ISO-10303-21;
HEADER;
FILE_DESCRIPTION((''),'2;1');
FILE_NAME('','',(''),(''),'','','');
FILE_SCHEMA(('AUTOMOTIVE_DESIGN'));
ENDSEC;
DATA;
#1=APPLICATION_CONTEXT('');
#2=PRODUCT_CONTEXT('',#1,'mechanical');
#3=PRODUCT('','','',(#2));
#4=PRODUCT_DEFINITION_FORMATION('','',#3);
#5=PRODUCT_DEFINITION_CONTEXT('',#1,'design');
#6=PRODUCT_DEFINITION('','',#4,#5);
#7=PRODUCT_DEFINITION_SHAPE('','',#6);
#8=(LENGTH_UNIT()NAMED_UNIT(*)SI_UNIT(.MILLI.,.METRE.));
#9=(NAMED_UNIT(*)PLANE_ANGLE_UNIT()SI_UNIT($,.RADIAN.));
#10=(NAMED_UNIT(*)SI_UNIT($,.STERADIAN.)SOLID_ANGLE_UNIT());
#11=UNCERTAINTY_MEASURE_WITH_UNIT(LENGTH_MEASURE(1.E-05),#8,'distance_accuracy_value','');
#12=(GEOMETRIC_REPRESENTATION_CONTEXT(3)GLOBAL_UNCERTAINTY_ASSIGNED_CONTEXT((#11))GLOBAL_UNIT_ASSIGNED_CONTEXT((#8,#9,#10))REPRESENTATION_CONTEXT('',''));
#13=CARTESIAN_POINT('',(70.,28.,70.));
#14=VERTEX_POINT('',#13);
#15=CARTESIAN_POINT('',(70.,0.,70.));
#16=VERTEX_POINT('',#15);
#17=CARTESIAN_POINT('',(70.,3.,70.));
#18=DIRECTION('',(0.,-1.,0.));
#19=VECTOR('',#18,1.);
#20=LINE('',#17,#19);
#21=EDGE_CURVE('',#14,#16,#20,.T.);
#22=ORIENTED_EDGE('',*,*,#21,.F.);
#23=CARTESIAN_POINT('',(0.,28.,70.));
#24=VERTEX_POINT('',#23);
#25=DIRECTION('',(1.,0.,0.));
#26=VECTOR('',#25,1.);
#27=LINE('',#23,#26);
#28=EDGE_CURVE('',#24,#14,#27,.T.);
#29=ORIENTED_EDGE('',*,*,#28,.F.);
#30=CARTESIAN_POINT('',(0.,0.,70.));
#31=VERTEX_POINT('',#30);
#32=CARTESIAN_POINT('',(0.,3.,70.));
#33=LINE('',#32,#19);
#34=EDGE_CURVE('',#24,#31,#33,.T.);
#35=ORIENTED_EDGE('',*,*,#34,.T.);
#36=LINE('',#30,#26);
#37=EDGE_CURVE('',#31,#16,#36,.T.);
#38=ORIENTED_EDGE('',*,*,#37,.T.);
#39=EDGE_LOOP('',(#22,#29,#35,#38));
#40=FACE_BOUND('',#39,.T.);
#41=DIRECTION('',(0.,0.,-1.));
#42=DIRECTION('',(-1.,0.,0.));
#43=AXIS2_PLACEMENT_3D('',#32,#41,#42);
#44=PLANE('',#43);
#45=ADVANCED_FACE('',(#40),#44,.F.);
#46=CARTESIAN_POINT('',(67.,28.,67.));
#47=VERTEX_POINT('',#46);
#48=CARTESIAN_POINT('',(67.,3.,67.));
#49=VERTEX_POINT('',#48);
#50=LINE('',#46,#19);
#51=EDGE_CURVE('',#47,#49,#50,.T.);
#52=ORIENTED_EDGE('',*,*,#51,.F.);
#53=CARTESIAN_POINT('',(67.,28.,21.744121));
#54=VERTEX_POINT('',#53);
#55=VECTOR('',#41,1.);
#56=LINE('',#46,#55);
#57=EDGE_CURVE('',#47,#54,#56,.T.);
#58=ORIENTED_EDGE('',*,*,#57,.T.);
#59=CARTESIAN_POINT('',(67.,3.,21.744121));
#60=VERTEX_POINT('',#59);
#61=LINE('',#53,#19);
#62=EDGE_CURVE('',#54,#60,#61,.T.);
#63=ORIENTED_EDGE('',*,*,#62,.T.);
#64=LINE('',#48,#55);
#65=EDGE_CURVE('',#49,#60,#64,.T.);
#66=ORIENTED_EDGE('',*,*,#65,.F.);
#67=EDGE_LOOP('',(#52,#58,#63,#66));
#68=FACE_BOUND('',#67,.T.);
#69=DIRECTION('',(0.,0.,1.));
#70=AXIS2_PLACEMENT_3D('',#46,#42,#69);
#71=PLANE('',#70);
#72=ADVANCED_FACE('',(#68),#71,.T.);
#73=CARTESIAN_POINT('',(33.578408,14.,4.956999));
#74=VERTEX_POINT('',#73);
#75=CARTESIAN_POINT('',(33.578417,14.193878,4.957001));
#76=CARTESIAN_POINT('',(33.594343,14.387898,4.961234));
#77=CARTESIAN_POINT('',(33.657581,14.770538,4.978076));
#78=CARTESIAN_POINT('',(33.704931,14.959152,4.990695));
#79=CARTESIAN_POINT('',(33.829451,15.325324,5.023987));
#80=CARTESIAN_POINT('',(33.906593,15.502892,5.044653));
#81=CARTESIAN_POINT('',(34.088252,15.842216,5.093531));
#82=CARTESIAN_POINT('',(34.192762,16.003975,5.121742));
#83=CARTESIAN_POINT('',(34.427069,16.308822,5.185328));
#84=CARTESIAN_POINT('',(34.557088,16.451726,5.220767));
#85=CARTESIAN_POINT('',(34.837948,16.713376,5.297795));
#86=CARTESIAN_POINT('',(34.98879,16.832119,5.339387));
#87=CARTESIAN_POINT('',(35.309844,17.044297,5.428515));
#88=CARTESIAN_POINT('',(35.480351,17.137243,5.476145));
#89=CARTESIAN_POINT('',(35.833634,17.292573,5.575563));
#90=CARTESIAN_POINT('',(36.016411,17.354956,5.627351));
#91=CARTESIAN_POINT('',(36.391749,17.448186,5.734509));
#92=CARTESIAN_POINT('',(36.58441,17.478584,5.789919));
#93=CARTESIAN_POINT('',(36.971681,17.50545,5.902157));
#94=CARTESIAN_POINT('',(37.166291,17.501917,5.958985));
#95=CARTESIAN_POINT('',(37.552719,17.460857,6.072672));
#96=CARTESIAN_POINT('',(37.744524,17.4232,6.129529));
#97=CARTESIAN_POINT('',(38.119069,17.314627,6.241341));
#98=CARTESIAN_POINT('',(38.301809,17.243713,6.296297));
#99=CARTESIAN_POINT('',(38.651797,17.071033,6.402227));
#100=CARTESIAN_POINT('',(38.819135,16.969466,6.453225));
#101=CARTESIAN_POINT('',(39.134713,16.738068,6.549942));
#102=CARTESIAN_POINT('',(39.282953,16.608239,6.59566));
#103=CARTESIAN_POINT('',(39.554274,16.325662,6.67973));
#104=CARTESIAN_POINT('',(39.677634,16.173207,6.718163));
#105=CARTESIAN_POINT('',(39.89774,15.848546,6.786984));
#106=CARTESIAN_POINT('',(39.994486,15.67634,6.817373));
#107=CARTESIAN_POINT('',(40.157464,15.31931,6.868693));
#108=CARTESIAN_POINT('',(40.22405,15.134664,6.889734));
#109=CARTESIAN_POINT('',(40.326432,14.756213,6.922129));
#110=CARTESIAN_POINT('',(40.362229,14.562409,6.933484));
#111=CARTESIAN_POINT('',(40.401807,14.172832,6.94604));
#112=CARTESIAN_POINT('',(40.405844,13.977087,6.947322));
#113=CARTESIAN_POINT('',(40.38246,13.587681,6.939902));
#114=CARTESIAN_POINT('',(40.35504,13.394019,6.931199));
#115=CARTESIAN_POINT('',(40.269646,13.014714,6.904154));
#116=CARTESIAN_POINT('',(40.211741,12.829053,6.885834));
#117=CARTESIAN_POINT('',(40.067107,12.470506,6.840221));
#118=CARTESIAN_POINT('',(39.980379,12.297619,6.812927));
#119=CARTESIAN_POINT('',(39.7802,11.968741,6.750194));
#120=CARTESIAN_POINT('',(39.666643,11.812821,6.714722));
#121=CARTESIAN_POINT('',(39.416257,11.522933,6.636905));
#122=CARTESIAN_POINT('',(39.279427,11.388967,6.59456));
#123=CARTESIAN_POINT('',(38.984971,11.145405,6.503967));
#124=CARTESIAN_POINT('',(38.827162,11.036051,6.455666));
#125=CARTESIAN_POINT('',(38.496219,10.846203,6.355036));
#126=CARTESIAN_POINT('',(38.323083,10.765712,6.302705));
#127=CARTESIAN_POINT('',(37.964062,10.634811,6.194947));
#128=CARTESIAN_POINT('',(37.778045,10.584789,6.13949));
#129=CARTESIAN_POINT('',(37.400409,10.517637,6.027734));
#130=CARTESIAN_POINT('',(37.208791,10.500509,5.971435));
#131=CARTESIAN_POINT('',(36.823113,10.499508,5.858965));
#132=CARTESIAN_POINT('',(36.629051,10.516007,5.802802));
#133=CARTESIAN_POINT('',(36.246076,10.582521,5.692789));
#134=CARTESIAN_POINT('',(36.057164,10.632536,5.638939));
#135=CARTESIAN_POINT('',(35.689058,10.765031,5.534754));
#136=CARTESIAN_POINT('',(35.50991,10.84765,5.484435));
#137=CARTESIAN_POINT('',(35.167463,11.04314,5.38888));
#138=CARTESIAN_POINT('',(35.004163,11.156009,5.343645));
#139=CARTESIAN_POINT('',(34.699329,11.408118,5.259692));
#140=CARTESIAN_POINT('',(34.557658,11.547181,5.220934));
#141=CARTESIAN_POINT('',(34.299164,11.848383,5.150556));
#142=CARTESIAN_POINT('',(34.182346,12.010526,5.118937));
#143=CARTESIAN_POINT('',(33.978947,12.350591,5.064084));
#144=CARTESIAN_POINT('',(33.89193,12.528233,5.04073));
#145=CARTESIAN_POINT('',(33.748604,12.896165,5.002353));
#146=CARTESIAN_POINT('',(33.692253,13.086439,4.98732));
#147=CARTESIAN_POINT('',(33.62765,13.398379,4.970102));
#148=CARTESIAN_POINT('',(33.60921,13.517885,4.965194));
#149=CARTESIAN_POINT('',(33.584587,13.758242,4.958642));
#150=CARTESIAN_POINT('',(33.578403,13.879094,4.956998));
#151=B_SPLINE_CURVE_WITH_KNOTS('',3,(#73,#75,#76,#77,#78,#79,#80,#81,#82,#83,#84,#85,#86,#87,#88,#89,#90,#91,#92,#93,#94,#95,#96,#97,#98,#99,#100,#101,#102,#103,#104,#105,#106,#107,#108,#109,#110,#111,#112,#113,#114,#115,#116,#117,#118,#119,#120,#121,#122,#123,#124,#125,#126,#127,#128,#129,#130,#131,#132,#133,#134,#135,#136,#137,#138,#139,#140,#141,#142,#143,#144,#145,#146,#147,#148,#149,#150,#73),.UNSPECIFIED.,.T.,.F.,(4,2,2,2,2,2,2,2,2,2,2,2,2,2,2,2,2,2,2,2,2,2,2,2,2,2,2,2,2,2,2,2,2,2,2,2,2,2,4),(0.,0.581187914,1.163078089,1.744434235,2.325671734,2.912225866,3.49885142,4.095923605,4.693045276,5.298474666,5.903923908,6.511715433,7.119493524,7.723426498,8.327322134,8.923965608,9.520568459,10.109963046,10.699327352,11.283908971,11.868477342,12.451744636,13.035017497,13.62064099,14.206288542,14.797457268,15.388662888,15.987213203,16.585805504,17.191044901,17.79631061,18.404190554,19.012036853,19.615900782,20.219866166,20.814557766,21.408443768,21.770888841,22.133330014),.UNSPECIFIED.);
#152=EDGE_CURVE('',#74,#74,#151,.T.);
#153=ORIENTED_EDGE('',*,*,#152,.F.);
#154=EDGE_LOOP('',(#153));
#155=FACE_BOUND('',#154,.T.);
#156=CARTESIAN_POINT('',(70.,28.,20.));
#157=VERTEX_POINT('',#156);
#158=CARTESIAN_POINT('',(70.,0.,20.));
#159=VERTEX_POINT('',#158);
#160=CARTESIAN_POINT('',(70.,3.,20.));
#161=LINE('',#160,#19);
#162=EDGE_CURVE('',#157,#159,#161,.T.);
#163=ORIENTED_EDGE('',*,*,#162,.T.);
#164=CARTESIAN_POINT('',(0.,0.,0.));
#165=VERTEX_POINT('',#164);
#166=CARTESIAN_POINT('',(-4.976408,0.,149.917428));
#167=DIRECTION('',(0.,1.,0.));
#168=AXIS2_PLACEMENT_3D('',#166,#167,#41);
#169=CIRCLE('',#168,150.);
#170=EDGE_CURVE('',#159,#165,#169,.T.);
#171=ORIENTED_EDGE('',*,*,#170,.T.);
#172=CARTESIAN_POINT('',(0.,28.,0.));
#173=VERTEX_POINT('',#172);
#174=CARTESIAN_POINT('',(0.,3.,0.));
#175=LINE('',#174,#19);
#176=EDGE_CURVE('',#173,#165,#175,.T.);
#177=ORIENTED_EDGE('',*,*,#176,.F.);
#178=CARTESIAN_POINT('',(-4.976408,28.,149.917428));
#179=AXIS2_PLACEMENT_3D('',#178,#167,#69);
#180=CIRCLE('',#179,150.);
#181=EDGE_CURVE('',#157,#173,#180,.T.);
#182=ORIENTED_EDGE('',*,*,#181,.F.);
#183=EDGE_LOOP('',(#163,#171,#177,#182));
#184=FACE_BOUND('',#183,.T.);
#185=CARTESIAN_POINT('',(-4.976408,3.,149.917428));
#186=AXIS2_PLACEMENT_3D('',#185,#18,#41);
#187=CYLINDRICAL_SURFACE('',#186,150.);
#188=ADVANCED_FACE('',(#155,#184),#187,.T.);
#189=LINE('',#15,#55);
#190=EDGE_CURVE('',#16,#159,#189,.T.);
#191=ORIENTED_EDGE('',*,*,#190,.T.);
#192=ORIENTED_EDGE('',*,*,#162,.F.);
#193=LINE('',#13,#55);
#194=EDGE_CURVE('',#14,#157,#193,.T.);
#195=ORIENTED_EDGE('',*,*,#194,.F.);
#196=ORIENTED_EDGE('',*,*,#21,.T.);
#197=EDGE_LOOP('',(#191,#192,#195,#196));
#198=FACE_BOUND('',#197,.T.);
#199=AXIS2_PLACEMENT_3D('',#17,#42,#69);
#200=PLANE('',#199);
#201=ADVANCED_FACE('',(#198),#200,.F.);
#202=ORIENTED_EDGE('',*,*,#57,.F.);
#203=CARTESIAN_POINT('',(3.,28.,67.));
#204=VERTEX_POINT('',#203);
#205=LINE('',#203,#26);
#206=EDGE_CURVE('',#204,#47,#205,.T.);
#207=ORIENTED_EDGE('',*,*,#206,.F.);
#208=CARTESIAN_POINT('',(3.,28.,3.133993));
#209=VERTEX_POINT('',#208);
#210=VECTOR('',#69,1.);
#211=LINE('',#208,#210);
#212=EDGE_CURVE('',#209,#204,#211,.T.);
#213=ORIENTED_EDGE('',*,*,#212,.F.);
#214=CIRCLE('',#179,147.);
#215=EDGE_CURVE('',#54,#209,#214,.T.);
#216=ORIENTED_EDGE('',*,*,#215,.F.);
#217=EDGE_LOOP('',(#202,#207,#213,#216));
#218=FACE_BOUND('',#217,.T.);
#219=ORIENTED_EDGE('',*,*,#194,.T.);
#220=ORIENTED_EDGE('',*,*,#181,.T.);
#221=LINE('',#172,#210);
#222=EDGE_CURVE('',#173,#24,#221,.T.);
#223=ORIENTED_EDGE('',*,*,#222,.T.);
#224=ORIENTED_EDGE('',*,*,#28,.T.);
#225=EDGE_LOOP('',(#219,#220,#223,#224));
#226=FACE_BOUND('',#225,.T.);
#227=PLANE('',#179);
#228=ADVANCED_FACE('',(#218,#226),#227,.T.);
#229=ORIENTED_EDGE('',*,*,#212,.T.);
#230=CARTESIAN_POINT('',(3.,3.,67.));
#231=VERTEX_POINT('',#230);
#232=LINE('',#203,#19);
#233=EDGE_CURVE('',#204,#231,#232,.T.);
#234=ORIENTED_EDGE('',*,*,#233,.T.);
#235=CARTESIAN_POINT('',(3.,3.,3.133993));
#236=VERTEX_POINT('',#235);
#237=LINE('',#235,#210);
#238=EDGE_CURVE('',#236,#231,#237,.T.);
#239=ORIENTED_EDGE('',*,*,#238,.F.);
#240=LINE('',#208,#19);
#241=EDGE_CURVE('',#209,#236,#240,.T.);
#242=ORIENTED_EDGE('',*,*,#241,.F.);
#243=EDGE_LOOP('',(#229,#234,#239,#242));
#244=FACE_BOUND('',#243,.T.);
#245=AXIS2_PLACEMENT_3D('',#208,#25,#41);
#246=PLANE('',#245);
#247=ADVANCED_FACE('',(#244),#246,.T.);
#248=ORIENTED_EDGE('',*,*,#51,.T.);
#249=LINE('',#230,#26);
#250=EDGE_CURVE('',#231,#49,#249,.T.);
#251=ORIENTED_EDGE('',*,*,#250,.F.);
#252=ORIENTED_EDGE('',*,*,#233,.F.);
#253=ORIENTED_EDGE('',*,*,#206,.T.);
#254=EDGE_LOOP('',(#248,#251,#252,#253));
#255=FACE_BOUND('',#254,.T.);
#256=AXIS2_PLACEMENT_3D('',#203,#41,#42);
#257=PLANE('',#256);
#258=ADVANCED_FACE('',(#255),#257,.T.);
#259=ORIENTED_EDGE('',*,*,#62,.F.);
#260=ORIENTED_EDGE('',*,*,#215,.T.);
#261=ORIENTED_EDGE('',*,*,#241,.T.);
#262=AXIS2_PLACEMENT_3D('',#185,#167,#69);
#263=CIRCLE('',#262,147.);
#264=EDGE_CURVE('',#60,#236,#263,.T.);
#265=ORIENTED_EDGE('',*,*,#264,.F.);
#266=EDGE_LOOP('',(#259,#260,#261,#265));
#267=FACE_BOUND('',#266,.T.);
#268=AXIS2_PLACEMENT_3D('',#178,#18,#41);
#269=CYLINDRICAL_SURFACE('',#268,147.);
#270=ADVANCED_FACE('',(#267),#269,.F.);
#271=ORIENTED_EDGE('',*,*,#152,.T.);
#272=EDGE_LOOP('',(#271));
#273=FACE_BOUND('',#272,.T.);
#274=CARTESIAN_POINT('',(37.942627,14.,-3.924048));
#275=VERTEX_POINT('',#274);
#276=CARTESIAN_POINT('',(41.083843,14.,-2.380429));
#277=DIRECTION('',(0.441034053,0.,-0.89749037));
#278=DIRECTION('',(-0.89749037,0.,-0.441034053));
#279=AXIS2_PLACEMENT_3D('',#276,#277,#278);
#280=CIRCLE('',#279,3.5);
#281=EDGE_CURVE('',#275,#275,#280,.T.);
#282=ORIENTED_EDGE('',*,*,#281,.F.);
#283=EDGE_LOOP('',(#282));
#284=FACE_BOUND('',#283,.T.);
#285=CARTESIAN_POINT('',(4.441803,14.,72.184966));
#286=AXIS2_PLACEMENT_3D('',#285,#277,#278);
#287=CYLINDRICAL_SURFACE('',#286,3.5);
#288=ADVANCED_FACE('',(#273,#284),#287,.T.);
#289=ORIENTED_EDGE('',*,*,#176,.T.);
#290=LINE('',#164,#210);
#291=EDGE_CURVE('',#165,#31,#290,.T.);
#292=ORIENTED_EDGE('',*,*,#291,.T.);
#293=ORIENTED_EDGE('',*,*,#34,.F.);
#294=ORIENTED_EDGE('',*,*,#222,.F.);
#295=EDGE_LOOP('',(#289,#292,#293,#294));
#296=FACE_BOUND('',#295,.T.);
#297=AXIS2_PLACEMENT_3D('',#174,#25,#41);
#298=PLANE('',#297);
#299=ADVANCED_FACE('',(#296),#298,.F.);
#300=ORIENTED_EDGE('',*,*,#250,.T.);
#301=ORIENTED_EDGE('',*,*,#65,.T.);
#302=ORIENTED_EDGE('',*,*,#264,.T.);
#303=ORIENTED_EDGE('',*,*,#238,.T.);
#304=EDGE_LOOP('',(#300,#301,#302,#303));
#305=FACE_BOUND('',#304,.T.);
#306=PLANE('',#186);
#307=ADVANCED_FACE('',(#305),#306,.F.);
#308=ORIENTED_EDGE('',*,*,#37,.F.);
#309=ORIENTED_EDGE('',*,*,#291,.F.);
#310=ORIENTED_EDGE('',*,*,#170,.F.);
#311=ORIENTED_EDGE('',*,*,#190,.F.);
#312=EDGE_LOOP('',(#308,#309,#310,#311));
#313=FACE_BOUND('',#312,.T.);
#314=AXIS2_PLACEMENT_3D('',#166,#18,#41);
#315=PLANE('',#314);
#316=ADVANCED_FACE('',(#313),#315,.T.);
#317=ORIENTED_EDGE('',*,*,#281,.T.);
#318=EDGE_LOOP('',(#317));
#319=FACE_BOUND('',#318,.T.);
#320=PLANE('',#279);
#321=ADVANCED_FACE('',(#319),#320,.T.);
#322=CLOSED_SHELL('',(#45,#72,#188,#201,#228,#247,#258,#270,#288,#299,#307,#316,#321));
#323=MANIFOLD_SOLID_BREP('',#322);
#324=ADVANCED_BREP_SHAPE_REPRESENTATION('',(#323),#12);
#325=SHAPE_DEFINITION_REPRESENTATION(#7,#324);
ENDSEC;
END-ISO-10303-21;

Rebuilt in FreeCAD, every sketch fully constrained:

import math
import FreeCAD as App
import Part
import Sketcher
from FreeCAD import Vector
Q = App.Units.Quantity

doc = App.newDocument("Part")
body = doc.addObject("PartDesign::Body", "Body")
body.AllowCompound = True

# Sketch on XZ plane
sketch1 = body.newObject("Sketcher::SketchObject", "Sketch")
sketch1.AttachmentSupport = (doc.getObject("XZ_Plane"), [""])
sketch1.MapMode = "FlatFace"
sketch1.addGeometry(Part.LineSegment(Vector(0, 0, 0), Vector(0, 70, 0)), False)
sketch1.addGeometry(Part.LineSegment(Vector(0, 70, 0), Vector(70, 70, 0)), False)
sketch1.addGeometry(Part.LineSegment(Vector(70, 70, 0), Vector(70, 20, 0)), False)
sketch1.addGeometry(Part.ArcOfCircle(Part.Circle(Vector(-4.976408, 149.917428, 0), Vector(0, 0, 1), 150), math.radians(-88.098803), math.radians(-60.010405)), False)
sketch1.addConstraint(Sketcher.Constraint("Coincident", 0, 2, 1, 1))
sketch1.addConstraint(Sketcher.Constraint("Coincident", 1, 2, 2, 1))
sketch1.addConstraint(Sketcher.Constraint("Coincident", 2, 2, 3, 2))
sketch1.addConstraint(Sketcher.Constraint("Coincident", 3, 1, 0, 1))
sketch1.addConstraint(Sketcher.Constraint("Vertical", 0))
sketch1.addConstraint(Sketcher.Constraint("Horizontal", 1))
sketch1.addConstraint(Sketcher.Constraint("Vertical", 2))
sketch1.addConstraint(Sketcher.Constraint("Coincident", 3, 1, -1, 1))
sketch1.addConstraint(Sketcher.Constraint("Equal", 1, 0))
sketch1.addConstraint(Sketcher.Constraint("Radius", 3, Q("150 mm")))
sketch1.addConstraint(Sketcher.Constraint("DistanceX", 1, 1, 1, 2, Q("70 mm")))
sketch1.addConstraint(Sketcher.Constraint("DistanceY", 2, 2, 2, 1, Q("50 mm")))
pad1 = body.newObject("PartDesign::Pad", "Pad")
pad1.Profile = sketch1
pad1.Length = 3
pad1.Reversed = True

# Sketch on XZ plane
sketch2 = body.newObject("Sketcher::SketchObject", "Sketch001")
sketch2.AttachmentSupport = (doc.getObject("XZ_Plane"), [""])
sketch2.MapMode = "FlatFace"
sketch2.AttachmentOffset = App.Placement(Vector(0, 0, -3), App.Rotation())
sketch2.addGeometry(Part.LineSegment(Vector(70, 70, 0), Vector(70, 20, 0)), False)
sketch2.addGeometry(Part.ArcOfCircle(Part.Circle(Vector(-4.976408, 149.917428, 0), Vector(0, 0, 1), 150), math.radians(-88.098803), math.radians(-60.010405)), False)
sketch2.addGeometry(Part.LineSegment(Vector(0, 0, 0), Vector(0, 70, 0)), False)
sketch2.addGeometry(Part.LineSegment(Vector(0, 70, 0), Vector(70, 70, 0)), False)
sketch2.addGeometry(Part.LineSegment(Vector(3, 67, 0), Vector(3, 3.133993, 0)), False)
sketch2.addGeometry(Part.ArcOfCircle(Part.Circle(Vector(-4.976408, 149.917428, 0), Vector(0, 0, 1), 147), math.radians(-86.88953), math.radians(-60.683378)), False)
sketch2.addGeometry(Part.LineSegment(Vector(67, 21.744121, 0), Vector(67, 67, 0)), False)
sketch2.addGeometry(Part.LineSegment(Vector(67, 67, 0), Vector(3, 67, 0)), False)
sketch2.addConstraint(Sketcher.Constraint("Coincident", 0, 2, 1, 2))
sketch2.addConstraint(Sketcher.Constraint("Coincident", 1, 1, 2, 1))
sketch2.addConstraint(Sketcher.Constraint("Coincident", 2, 2, 3, 1))
sketch2.addConstraint(Sketcher.Constraint("Coincident", 3, 2, 0, 1))
sketch2.addConstraint(Sketcher.Constraint("Coincident", 4, 2, 5, 1))
sketch2.addConstraint(Sketcher.Constraint("Coincident", 5, 2, 6, 1))
sketch2.addConstraint(Sketcher.Constraint("Coincident", 6, 2, 7, 1))
sketch2.addConstraint(Sketcher.Constraint("Coincident", 7, 2, 4, 1))
sketch2.addConstraint(Sketcher.Constraint("Vertical", 0))
sketch2.addConstraint(Sketcher.Constraint("Vertical", 2))
sketch2.addConstraint(Sketcher.Constraint("Horizontal", 3))
sketch2.addConstraint(Sketcher.Constraint("Vertical", 4))
sketch2.addConstraint(Sketcher.Constraint("Vertical", 6))
sketch2.addConstraint(Sketcher.Constraint("Horizontal", 7))
sketch2.addConstraint(Sketcher.Constraint("Coincident", 1, 1, -1, 1))
sketch2.addConstraint(Sketcher.Constraint("Coincident", 5, 3, 1, 3))
sketch2.addConstraint(Sketcher.Constraint("Equal", 3, 2))
sketch2.addConstraint(Sketcher.Constraint("Radius", 1, Q("150 mm")))
sketch2.addConstraint(Sketcher.Constraint("Radius", 5, Q("147 mm")))
sketch2.addConstraint(Sketcher.Constraint("DistanceX", 3, 1, 3, 2, Q("70 mm")))
sketch2.addConstraint(Sketcher.Constraint("DistanceX", 7, 2, 7, 1, Q("64 mm")))
sketch2.addConstraint(Sketcher.Constraint("DistanceY", 0, 2, 0, 1, Q("50 mm")))
sketch2.addConstraint(Sketcher.Constraint("DistanceX", -1, 1, 4, 2, Q("3 mm")))
sketch2.addConstraint(Sketcher.Constraint("DistanceY", -1, 1, 6, 2, Q("67 mm")))
pad2 = body.newObject("PartDesign::Pad", "Pad001")
pad2.Profile = sketch2
pad2.Length = 25
pad2.Reversed = True

# Sketch on an angled plane
sketch3 = body.newObject("Sketcher::SketchObject", "Sketch002")
sketch3.Placement = App.Placement(Vector(61.1787, 14, 15.293873), App.Rotation(Vector(-0.89749037, 0, -0.441034053), Vector(0, 1, 0), Vector(0.441034053, 0, -0.89749037), "ZXY"))
sketch3.addGeometry(Part.Circle(Vector(25.829909, 0, 0), Vector(0, 0, 1), 3.5), False)
sketch3.addConstraint(Sketcher.Constraint("PointOnObject", 0, 3, -1))
sketch3.addConstraint(Sketcher.Constraint("Diameter", 0, Q("7 mm")))
sketch3.addConstraint(Sketcher.Constraint("DistanceX", -1, 1, 0, 3, Q("25.829909 mm")))
pad3 = body.newObject("PartDesign::Pad", "Pad002")
pad3.Profile = sketch3
pad3.Length = 7

# Sketch on an angled plane
sketch4 = body.newObject("Sketcher::SketchObject", "Sketch003")
sketch4.Placement = App.Placement(Vector(61.1787, 14, 15.293873), App.Rotation(Vector(-0.89749037, 0, -0.441034053), Vector(0, 1, 0), Vector(0.441034053, 0, -0.89749037), "ZXY"))
sketch4.addGeometry(Part.Circle(Vector(25.829909, 0, 0), Vector(0, 0, 1), 3.5), False)
sketch4.addConstraint(Sketcher.Constraint("PointOnObject", 0, 3, -1))
sketch4.addConstraint(Sketcher.Constraint("Diameter", 0, Q("7 mm")))
sketch4.addConstraint(Sketcher.Constraint("DistanceX", -1, 1, 0, 3, Q("25.829909 mm")))
pad4 = body.newObject("PartDesign::Pad", "Pad003")
pad4.Profile = sketch4
pad4.Type = "UpToFirst"
pad4.Reversed = True

doc.recompute()
